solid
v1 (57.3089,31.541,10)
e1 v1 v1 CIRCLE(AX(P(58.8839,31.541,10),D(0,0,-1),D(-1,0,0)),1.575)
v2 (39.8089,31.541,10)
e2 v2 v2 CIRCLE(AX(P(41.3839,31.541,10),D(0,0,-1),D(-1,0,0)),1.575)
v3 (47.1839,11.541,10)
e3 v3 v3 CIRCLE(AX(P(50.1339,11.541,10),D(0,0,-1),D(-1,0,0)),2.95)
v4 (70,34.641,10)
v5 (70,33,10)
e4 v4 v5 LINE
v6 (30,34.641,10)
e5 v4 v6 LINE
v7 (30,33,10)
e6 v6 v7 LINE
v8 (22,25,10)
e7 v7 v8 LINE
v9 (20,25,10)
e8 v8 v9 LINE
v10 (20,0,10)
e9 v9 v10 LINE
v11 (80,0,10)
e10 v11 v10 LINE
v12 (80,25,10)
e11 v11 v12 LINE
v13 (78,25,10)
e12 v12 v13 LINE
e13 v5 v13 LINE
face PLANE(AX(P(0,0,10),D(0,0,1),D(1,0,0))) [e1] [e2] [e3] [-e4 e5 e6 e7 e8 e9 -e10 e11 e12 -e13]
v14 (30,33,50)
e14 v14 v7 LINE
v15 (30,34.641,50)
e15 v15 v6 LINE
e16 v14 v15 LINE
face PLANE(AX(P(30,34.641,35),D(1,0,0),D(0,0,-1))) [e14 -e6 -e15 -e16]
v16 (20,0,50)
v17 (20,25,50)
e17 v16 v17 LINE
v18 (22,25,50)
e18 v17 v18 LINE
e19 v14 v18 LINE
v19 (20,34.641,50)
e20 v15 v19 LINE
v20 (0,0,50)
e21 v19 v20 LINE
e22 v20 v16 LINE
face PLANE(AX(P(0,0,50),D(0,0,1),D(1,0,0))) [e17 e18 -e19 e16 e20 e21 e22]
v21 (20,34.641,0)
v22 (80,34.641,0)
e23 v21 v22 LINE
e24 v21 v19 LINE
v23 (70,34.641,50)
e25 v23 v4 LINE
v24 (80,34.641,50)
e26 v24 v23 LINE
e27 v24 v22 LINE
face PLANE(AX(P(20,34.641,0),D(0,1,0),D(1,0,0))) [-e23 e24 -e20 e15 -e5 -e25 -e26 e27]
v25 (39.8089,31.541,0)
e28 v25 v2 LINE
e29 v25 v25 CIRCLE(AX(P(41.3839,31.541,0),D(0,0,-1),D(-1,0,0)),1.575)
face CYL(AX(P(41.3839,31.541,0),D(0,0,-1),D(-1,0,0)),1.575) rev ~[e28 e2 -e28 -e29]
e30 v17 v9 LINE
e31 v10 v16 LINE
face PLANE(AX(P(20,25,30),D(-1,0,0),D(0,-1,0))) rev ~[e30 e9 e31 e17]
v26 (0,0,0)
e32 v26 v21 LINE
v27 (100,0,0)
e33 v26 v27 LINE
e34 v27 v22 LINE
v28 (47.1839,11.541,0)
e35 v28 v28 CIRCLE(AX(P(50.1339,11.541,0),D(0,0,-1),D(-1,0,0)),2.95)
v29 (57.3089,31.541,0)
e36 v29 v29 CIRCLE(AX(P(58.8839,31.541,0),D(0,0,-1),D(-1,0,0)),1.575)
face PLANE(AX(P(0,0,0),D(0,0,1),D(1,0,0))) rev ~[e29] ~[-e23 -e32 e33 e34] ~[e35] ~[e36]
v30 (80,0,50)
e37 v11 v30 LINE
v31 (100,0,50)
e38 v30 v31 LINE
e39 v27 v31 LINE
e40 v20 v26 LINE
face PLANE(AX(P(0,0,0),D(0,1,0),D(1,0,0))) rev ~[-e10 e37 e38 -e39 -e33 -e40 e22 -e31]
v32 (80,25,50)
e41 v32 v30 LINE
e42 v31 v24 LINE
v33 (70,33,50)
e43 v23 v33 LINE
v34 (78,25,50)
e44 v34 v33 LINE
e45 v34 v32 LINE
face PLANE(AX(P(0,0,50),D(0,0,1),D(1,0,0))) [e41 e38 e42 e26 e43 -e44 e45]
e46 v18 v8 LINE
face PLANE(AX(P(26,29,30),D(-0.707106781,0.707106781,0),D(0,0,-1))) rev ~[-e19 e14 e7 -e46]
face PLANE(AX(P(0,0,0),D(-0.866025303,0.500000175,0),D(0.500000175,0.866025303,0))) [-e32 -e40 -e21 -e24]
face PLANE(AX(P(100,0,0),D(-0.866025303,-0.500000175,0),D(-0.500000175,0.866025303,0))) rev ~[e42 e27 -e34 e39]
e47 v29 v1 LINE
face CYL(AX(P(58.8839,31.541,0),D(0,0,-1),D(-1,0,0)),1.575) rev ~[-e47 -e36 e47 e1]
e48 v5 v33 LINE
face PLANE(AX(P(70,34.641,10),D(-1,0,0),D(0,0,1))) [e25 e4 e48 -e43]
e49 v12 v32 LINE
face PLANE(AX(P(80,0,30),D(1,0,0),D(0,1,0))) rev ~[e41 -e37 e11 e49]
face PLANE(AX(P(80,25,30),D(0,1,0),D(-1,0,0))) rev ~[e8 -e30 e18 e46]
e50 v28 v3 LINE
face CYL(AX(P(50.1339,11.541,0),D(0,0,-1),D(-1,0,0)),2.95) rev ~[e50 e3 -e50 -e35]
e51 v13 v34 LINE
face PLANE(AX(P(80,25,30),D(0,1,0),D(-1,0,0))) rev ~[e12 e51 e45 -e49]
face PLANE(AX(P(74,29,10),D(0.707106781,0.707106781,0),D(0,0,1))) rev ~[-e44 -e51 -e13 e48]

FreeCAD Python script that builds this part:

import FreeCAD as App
import Part
import Sketcher

V = App.Vector
Q = App.Units.Quantity


def edges_at(feature, points):
    """Names of the edges that pass closest to the given points."""
    edges = feature.Shape.Edges
    near = lambda p: min(range(len(edges)), key=lambda i: edges[i].distToShape(Part.Vertex(*p))[0])
    return sorted({f"Edge{near(p) + 1}" for p in points})


def add_polygon(sketch, points):
    """Adds a closed chain of lines whose ends are joined by coincident constraints."""
    first, n = sketch.GeometryCount, len(points)
    for a, b in zip(points, points[1:] + points[:1]):
        sketch.addGeometry(Part.LineSegment(App.Vector(*a, 0), App.Vector(*b, 0)), False)
    for i in range(n):
        sketch.addConstraint(Sketcher.Constraint("Coincident", first + i, 2, first + (i + 1) % n, 1))

doc = App.newDocument("Part")
body = doc.addObject("PartDesign::Body", "Body")

# Sketch on XY plane
sketch1 = doc.addObject("Sketcher::SketchObject", "Sketch")
body.addObject(sketch1)
sketch1.AttachmentSupport = (doc.XY_Plane, [""])
sketch1.MapMode = "FlatFace"
add_polygon(sketch1, [(20, 35), (0, 0), (100, 0), (80, 35)])  # lines 0-3
sketch1.addConstraint(Sketcher.Constraint("Horizontal", 1))
sketch1.addConstraint(Sketcher.Constraint("Horizontal", 3))
sketch1.addConstraint(Sketcher.Constraint("Coincident", 0, 2, -1, 1))
sketch1.addConstraint(Sketcher.Constraint("Equal", 0, 2))
sketch1.addConstraint(Sketcher.Constraint("DistanceX", 1, 1, 1, 2, 100.0))
sketch1.addConstraint(Sketcher.Constraint("DistanceX", 3, 2, 3, 1, 60.0))
sketch1.addConstraint(Sketcher.Constraint("Angle", 0, Q("-120 deg")))
pad1 = doc.addObject("PartDesign::Pad", "Pad")
body.addObject(pad1)
pad1.Profile = sketch1
pad1.Length = 30

# Sketch on XY plane
sketch2 = doc.addObject("Sketcher::SketchObject", "Sketch001")
body.addObject(sketch2)
sketch2.AttachmentSupport = (doc.XY_Plane, [""])
sketch2.MapMode = "FlatFace"
sketch2.AttachmentOffset = App.Placement(V(0, 0, 30), App.Rotation())
add_polygon(sketch2, [(20, 25), (20, 0), (80, 0), (80, 25)])  # lines 0-3
sketch2.addConstraint(Sketcher.Constraint("Vertical", 0))
sketch2.addConstraint(Sketcher.Constraint("Horizontal", 1))
sketch2.addConstraint(Sketcher.Constraint("Vertical", 2))
sketch2.addConstraint(Sketcher.Constraint("Horizontal", 3))
sketch2.addConstraint(Sketcher.Constraint("PointOnObject", 0, 2, -1))
sketch2.addConstraint(Sketcher.Constraint("DistanceX", 1, 1, 1, 2, 60.0))
sketch2.addConstraint(Sketcher.Constraint("DistanceY", 0, 2, 0, 1, 25.0))
sketch2.addConstraint(Sketcher.Constraint("DistanceX", -1, 1, 0, 2, 20.0))
pocket1 = doc.addObject("PartDesign::Pocket", "Pocket")
body.addObject(pocket1)
pocket1.Profile = sketch2
pocket1.Length = 20

# Sketch on XZ plane
sketch3 = doc.addObject("Sketcher::SketchObject", "Sketch002")
body.addObject(sketch3)
sketch3.AttachmentSupport = (doc.XZ_Plane, [""])
sketch3.MapMode = "FlatFace"
sketch3.AttachmentOffset = App.Placement(V(0, 0, -34.641), App.Rotation())
add_polygon(sketch3, [(70, 35), (70, 10), (30, 10), (30, 35)])  # lines 0-3
sketch3.addConstraint(Sketcher.Constraint("Vertical", 0))
sketch3.addConstraint(Sketcher.Constraint("Horizontal", 1))
sketch3.addConstraint(Sketcher.Constraint("Vertical", 2))
sketch3.addConstraint(Sketcher.Constraint("Horizontal", 3))
sketch3.addConstraint(Sketcher.Constraint("DistanceX", 1, 2, 1, 1, 40.0))
sketch3.addConstraint(Sketcher.Constraint("DistanceY", 0, 2, 0, 1, 25.0))
sketch3.addConstraint(Sketcher.Constraint("DistanceX", -1, 1, 0, 2, 70.0))
sketch3.addConstraint(Sketcher.Constraint("DistanceY", -1, 1, 0, 2, 10.0))
pocket2 = doc.addObject("PartDesign::Pocket", "Pocket001")
body.addObject(pocket2)
pocket2.Profile = sketch3
pocket2.Type = "ThroughAll"
pocket2.Reversed = True
doc.recompute()

chamfer = doc.addObject("PartDesign::Chamfer", "Chamfer")
body.addObject(chamfer)
chamfer.Base = (pocket2, edges_at(pocket2, [(30, 25, 20)]))
chamfer.Size = 8
doc.recompute()

chamfer2 = doc.addObject("PartDesign::Chamfer", "Chamfer001")
body.addObject(chamfer2)
chamfer2.Base = (chamfer, edges_at(chamfer, [(70, 25, 20)]))
chamfer2.Size = 8

# Sketch on XY plane
sketch4 = doc.addObject("Sketcher::SketchObject", "Sketch003")
body.addObject(sketch4)
sketch4.AttachmentSupport = (doc.XY_Plane, [""])
sketch4.MapMode = "FlatFace"
sketch4.AttachmentOffset = App.Placement(V(0, 0, 30), App.Rotation())
add_polygon(sketch4, [(22, 25), (30, 33), (30, 34.6), (20, 34.6), (0, 0), (20, 0), (20, 25)])  # lines 0-6
add_polygon(sketch4, [(70, 33), (78, 25), (80, 25), (80, 0), (100, 0), (80, 34.6), (70, 34.6)])  # lines 7-13
sketch4.addConstraint(Sketcher.Constraint("Vertical", 1))
sketch4.addConstraint(Sketcher.Constraint("Horizontal", 2))
sketch4.addConstraint(Sketcher.Constraint("Horizontal", 4))
sketch4.addConstraint(Sketcher.Constraint("Vertical", 5))
sketch4.addConstraint(Sketcher.Constraint("Horizontal", 6))
sketch4.addConstraint(Sketcher.Constraint("Horizontal", 8))
sketch4.addConstraint(Sketcher.Constraint("Vertical", 9))
sketch4.addConstraint(Sketcher.Constraint("Horizontal", 10))
sketch4.addConstraint(Sketcher.Constraint("Horizontal", 12))
sketch4.addConstraint(Sketcher.Constraint("Vertical", 13))
sketch4.addConstraint(Sketcher.Constraint("Coincident", 3, 2, -1, 1))
sketch4.addConstraint(Sketcher.Constraint("PointOnObject", 9, 2, -1))
sketch4.addConstraint(Sketcher.Constraint("Perpendicular", 0, 7))
sketch4.addConstraint(Sketcher.Constraint("Horizontal", 6, 2, 7, 2))
sketch4.addConstraint(Sketcher.Constraint("Horizontal", 2, 2, 11, 2))
sketch4.addConstraint(Sketcher.Constraint("Horizontal", 0, 2, 13, 2))
sketch4.addConstraint(Sketcher.Constraint("Vertical", 2, 2, 4, 2))
sketch4.addConstraint(Sketcher.Constraint("Vertical", 9, 2, 11, 2))
sketch4.addConstraint(Sketcher.Constraint("Equal", 6, 8))
sketch4.addConstraint(Sketcher.Constraint("Equal", 4, 10))
sketch4.addConstraint(Sketcher.Constraint("Equal", 2, 12))
sketch4.addConstraint(Sketcher.Constraint("DistanceX", 2, 2, 2, 1, 10.0))
sketch4.addConstraint(Sketcher.Constraint("DistanceX", 4, 1, 4, 2, 20.0))
sketch4.addConstraint(Sketcher.Constraint("DistanceX", 6, 1, 6, 2, 2.0))
sketch4.addConstraint(Sketcher.Constraint("DistanceY", 5, 1, 5, 2, 25.0))
sketch4.addConstraint(Sketcher.Constraint("Angle", 3, Q("-120 deg")))
sketch4.addConstraint(Sketcher.Constraint("DistanceX", -1, 1, 7, 2, 78.0))
pad2 = doc.addObject("PartDesign::Pad", "Pad001")
body.addObject(pad2)
pad2.Profile = sketch4
pad2.Length = 20

# Sketch on XY plane
sketch5 = doc.addObject("Sketcher::SketchObject", "Sketch004")
body.addObject(sketch5)
sketch5.AttachmentSupport = (doc.XY_Plane, [""])
sketch5.MapMode = "FlatFace"
sketch5.addGeometry(Part.Circle(V(58.9, 31.5, 0), V(0, 0, 1), 1.6), False)
sketch5.addGeometry(Part.Circle(V(41.4, 31.5, 0), V(0, 0, 1), 1.6), False)
sketch5.addGeometry(Part.Circle(V(50.1, 11.5, 0), V(0, 0, 1), 3), False)
sketch5.addConstraint(Sketcher.Constraint("Equal", 0, 1))
sketch5.addConstraint(Sketcher.Constraint("Horizontal", 0, 3, 1, 3))
sketch5.addConstraint(Sketcher.Constraint("Diameter", 2, 5.9))
sketch5.addConstraint(Sketcher.Constraint("Diameter", 0, 3.15))
sketch5.addConstraint(Sketcher.Constraint("DistanceY", 2, 3, 0, 3, 20.0))
sketch5.addConstraint(Sketcher.Constraint("DistanceX", 1, 3, 0, 3, 17.5))
sketch5.addConstraint(Sketcher.Constraint("DistanceX", 2, 3, 0, 3, 8.75))
sketch5.addConstraint(Sketcher.Constraint("DistanceX", -1, 1, 0, 3, 58.884))
sketch5.addConstraint(Sketcher.Constraint("DistanceY", -1, 1, 0, 3, 31.541))
pocket3 = doc.addObject("PartDesign::Pocket", "Pocket002")
body.addObject(pocket3)
pocket3.Profile = sketch5
pocket3.Length = 10
pocket3.Reversed = True

doc.recompute()
